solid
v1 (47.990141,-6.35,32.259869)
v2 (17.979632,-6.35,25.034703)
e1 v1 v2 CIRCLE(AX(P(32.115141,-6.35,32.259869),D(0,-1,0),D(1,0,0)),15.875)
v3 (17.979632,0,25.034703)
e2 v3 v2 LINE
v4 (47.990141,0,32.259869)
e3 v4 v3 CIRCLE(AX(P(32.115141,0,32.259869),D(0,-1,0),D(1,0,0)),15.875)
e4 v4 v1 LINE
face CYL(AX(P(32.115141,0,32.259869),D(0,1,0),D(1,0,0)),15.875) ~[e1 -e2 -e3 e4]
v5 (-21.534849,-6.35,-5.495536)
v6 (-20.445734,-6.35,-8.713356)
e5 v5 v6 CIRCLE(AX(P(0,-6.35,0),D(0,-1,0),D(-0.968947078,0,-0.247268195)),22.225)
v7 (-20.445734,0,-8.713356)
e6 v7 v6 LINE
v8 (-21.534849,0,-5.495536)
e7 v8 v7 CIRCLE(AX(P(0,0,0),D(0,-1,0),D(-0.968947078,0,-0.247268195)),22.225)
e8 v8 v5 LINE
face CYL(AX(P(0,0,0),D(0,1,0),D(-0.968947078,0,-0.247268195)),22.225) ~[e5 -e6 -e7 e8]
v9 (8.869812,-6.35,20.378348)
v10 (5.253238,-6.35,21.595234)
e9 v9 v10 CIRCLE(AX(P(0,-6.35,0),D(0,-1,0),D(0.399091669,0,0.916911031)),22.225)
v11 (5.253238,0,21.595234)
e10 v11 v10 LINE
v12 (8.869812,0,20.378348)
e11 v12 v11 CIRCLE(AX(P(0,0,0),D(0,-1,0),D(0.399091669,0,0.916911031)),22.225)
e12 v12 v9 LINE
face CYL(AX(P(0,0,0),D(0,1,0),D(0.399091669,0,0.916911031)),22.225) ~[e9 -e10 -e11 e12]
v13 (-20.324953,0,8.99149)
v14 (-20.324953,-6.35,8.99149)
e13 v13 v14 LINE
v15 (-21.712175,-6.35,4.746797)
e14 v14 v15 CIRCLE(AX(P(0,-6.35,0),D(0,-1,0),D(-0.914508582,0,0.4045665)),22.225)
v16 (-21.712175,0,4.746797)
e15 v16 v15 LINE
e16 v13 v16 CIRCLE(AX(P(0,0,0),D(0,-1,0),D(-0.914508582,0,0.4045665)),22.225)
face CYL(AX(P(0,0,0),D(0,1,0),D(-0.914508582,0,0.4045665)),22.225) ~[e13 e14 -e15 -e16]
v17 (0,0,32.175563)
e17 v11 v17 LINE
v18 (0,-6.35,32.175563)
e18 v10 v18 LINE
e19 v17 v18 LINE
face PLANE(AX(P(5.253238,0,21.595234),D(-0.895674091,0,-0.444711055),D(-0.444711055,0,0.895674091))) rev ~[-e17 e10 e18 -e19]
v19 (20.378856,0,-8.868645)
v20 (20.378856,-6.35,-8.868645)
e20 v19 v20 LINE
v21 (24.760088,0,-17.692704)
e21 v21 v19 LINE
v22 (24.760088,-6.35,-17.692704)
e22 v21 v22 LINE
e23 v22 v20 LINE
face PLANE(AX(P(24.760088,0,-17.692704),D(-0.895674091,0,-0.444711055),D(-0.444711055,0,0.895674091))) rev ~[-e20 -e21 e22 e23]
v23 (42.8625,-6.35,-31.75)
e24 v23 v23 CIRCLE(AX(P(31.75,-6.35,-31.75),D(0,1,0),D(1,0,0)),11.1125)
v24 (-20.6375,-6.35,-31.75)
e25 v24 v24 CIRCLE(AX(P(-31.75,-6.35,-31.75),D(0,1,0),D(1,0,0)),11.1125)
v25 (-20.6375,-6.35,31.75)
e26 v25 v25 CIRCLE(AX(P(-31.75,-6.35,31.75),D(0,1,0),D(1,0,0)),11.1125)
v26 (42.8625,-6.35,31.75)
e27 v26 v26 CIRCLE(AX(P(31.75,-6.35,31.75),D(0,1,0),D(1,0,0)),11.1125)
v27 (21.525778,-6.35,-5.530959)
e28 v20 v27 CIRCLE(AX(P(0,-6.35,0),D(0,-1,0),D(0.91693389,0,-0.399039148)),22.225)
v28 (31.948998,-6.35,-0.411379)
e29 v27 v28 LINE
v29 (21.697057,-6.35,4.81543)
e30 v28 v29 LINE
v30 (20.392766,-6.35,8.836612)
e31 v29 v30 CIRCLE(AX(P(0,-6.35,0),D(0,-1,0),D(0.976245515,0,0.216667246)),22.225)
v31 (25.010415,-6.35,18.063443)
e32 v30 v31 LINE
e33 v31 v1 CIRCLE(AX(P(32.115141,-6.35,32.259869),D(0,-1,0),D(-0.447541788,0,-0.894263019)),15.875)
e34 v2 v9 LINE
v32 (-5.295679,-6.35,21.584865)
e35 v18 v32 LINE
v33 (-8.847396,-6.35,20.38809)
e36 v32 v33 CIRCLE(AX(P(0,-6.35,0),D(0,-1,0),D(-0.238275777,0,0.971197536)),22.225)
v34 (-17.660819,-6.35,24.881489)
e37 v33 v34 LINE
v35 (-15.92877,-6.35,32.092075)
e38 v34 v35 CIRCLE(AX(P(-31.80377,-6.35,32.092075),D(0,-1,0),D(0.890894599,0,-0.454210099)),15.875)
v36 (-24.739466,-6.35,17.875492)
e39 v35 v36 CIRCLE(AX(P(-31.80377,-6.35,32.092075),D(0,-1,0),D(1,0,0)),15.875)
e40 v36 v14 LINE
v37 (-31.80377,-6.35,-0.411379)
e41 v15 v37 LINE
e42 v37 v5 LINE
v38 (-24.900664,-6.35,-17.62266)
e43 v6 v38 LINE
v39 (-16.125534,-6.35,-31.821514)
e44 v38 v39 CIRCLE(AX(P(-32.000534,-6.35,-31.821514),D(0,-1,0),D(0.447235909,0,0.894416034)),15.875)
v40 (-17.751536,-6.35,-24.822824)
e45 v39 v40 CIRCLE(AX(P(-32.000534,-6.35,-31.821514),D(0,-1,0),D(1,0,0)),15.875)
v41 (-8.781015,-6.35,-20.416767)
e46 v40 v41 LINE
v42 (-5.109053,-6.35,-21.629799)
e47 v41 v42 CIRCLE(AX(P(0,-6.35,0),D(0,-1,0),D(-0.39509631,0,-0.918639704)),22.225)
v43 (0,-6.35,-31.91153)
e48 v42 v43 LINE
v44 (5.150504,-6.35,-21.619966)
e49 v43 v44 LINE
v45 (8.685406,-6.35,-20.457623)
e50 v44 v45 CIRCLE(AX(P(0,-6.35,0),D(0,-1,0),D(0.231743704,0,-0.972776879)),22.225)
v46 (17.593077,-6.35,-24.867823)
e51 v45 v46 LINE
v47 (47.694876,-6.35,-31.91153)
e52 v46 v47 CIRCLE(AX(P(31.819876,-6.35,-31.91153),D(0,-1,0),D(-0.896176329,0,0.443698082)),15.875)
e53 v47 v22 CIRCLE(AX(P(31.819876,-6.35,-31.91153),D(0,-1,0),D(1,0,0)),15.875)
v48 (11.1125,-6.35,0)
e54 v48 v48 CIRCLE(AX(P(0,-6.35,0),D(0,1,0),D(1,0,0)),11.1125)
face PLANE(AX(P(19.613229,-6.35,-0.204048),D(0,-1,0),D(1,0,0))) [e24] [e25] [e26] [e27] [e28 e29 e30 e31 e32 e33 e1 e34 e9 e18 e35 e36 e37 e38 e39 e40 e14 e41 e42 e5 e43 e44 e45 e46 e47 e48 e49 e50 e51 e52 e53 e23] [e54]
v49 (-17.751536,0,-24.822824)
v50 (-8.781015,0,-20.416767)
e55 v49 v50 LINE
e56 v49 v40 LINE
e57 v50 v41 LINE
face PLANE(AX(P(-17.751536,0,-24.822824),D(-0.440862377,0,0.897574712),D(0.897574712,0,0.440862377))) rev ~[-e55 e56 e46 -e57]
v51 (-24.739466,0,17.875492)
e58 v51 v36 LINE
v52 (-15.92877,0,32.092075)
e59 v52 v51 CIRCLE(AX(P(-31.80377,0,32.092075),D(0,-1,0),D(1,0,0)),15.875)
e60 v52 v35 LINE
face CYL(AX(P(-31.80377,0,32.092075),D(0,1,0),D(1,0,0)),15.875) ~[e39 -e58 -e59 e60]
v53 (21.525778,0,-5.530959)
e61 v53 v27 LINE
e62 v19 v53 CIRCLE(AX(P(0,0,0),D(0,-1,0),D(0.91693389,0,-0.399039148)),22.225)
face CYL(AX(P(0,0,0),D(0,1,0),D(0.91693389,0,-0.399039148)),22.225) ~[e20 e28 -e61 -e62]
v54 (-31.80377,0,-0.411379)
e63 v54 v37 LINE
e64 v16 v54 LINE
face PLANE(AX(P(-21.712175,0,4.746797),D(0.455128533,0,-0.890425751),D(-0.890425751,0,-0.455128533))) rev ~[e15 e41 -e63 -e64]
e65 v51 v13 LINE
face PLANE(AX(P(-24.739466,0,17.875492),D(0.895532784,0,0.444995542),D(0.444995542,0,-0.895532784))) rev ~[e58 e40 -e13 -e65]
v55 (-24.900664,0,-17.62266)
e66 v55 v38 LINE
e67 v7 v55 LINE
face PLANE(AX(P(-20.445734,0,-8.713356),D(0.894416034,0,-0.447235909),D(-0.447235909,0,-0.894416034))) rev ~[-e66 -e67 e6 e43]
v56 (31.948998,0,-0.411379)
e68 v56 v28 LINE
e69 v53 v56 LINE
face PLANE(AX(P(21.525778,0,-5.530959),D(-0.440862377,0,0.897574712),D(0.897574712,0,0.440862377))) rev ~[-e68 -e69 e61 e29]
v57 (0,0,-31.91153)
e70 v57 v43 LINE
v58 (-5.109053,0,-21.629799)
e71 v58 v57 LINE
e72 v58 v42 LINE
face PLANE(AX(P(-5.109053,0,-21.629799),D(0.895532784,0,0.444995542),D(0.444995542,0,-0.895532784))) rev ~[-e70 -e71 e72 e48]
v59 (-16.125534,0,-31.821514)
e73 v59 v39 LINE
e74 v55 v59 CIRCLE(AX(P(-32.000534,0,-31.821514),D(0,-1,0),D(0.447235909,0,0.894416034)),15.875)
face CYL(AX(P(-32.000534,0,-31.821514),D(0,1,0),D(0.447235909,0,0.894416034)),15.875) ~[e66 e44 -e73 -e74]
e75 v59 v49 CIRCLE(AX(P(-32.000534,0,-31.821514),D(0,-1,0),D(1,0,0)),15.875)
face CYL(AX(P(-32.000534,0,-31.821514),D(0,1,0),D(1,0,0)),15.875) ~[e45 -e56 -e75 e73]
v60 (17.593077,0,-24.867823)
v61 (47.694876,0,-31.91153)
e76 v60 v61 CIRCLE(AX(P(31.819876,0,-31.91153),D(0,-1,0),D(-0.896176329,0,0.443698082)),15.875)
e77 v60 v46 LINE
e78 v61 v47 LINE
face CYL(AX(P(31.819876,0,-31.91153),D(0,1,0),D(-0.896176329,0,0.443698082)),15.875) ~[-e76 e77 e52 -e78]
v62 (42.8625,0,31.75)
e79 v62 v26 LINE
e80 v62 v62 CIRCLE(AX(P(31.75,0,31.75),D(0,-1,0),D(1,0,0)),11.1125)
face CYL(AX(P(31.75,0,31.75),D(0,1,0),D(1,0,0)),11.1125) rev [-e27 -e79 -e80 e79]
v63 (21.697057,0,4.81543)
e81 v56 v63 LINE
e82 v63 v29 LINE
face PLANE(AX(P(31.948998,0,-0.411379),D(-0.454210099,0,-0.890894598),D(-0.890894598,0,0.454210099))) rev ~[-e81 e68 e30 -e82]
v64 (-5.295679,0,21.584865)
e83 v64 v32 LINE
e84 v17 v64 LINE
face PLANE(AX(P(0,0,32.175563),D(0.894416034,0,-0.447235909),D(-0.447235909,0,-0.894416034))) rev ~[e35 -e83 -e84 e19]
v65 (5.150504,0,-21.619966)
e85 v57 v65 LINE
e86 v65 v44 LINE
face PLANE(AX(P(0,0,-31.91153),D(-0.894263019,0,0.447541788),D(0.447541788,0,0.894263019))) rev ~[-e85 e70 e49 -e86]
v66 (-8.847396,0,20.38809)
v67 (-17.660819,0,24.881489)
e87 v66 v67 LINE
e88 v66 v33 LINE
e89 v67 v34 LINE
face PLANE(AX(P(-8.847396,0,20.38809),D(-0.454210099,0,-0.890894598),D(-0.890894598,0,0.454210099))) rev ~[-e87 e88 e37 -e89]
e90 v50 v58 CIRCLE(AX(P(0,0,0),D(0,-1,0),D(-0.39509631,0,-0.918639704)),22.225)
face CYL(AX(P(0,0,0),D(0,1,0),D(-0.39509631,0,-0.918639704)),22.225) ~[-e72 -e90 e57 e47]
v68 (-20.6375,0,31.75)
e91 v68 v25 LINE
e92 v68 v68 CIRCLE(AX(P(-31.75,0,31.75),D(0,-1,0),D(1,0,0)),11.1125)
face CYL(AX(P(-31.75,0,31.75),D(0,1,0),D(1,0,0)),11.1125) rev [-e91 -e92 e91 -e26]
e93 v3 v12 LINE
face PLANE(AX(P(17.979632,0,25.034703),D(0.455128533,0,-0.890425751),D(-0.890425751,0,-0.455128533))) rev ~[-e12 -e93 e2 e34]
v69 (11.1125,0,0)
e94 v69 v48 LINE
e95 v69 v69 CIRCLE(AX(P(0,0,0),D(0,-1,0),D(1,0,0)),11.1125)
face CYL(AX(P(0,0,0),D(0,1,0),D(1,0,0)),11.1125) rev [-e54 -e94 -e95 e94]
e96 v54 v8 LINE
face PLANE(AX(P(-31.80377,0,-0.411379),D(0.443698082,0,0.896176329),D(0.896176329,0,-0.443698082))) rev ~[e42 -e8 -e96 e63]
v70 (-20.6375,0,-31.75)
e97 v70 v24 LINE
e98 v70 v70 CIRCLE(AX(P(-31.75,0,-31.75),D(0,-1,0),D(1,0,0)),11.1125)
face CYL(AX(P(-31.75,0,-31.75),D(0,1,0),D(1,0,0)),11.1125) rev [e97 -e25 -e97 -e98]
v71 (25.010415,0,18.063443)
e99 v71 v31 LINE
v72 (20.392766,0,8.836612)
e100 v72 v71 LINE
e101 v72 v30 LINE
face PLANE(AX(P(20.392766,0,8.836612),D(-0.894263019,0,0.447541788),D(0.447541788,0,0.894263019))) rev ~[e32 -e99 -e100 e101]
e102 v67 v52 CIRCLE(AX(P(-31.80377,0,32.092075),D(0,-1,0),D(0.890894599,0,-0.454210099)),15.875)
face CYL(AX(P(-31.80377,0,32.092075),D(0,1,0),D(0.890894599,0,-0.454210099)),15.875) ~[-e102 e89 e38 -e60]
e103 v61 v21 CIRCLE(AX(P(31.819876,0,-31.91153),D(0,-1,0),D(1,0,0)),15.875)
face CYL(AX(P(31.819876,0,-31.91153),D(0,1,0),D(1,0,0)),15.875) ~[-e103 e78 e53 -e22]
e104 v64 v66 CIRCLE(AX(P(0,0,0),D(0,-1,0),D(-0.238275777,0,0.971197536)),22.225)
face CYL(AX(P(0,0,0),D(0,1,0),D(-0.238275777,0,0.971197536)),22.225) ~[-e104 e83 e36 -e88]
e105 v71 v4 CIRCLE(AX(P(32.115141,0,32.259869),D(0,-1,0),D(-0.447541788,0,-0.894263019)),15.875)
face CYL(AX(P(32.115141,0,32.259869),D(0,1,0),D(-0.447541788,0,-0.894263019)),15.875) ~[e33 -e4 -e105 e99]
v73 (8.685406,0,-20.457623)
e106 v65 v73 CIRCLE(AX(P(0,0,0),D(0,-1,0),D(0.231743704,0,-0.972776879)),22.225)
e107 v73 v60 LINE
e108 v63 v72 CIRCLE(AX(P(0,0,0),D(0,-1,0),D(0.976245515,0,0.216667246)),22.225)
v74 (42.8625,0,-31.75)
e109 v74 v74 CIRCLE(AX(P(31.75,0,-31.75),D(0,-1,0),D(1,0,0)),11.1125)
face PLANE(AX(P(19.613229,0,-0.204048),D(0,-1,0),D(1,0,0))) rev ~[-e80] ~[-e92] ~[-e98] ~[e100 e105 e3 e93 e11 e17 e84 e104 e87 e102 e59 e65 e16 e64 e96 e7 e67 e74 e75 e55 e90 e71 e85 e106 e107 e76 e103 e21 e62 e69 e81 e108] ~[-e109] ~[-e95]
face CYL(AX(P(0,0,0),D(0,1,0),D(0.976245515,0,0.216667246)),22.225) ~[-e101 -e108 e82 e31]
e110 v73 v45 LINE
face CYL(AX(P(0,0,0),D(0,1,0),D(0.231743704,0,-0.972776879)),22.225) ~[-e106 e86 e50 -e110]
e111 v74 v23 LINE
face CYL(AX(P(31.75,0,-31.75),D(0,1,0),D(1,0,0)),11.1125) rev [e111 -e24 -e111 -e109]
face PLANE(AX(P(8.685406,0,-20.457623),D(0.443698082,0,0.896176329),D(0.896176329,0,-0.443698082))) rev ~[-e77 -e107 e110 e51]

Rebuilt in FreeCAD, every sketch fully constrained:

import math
import FreeCAD as App
import Part
import Sketcher

V = App.Vector
Q = App.Units.Quantity


def add_polygon(sketch, points):
    """Adds a closed chain of lines whose ends are joined by coincident constraints."""
    first, n = sketch.GeometryCount, len(points)
    for a, b in zip(points, points[1:] + points[:1]):
        sketch.addGeometry(Part.LineSegment(App.Vector(*a, 0), App.Vector(*b, 0)), False)
    for i in range(n):
        sketch.addConstraint(Sketcher.Constraint("Coincident", first + i, 2, first + (i + 1) % n, 1))

doc = App.newDocument("Part")
body = doc.addObject("PartDesign::Body", "Body")

# Sketch on XZ plane
sketch1 = doc.addObject("Sketcher::SketchObject", "Sketch")
body.addObject(sketch1)
sketch1.AttachmentSupport = (doc.XZ_Plane, [""])
sketch1.MapMode = "FlatFace"
sketch1.addGeometry(Part.LineSegment(V(-20.445734, -8.713356, 0), V(-24.900664, -17.62266, 0)), False)  # 0
sketch1.addGeometry(Part.ArcOfCircle(Part.Circle(V(-32.000534, -31.821514, 0), V(0, 0, 1), 15.875), math.radians(63.433519), math.radians(360)), False)  # 1
sketch1.addGeometry(Part.ArcOfCircle(Part.Circle(V(-32.000534, -31.821514, 0), V(0, 0, 1), 15.875), math.radians(0), math.radians(26.158917)), False)  # 2
sketch1.addGeometry(Part.LineSegment(V(-17.751536, -24.822824, 0), V(-8.781015, -20.416767, 0)), False)  # 3
sketch1.addGeometry(Part.ArcOfCircle(Part.Circle(V(0, 0, 0), V(0, 0, 1), 22.225), math.radians(-113.271981), math.radians(-103.289928)), False)  # 4
sketch1.addGeometry(Part.LineSegment(V(-5.109053, -21.629799, 0), V(0, -31.91153, 0)), False)  # 5
sketch1.addGeometry(Part.LineSegment(V(0, -31.91153, 0), V(5.150504, -21.619966, 0)), False)  # 6
sketch1.addGeometry(Part.ArcOfCircle(Part.Circle(V(0, 0, 0), V(0, 0, 1), 22.225), math.radians(-76.600247), math.radians(-66.996062)), False)  # 7
sketch1.addGeometry(Part.LineSegment(V(8.685406, -20.457623, 0), V(17.593077, -24.867823, 0)), False)  # 8
sketch1.addGeometry(Part.ArcOfCircle(Part.Circle(V(31.819876, -31.91153, 0), V(0, 0, 1), 15.875), math.radians(153.659928), math.radians(360)), False)  # 9
sketch1.addGeometry(Part.ArcOfCircle(Part.Circle(V(31.819876, -31.91153, 0), V(0, 0, 1), 15.875), math.radians(0), math.radians(116.404854)), False)  # 10
sketch1.addGeometry(Part.LineSegment(V(24.760088, -17.692704, 0), V(20.378856, -8.868645, 0)), False)  # 11
sketch1.addGeometry(Part.ArcOfCircle(Part.Circle(V(0, 0, 0), V(0, 0, 1), 22.225), math.radians(-23.518125), math.radians(-14.410185)), False)  # 12
sketch1.addGeometry(Part.LineSegment(V(21.525778, -5.530959, 0), V(31.948998, -0.411379, 0)), False)  # 13
sketch1.addGeometry(Part.LineSegment(V(31.948998, -0.411379, 0), V(21.697057, 4.81543, 0)), False)  # 14
sketch1.addGeometry(Part.ArcOfCircle(Part.Circle(V(0, 0, 0), V(0, 0, 1), 22.225), math.radians(12.513359), math.radians(23.428094)), False)  # 15
sketch1.addGeometry(Part.LineSegment(V(20.392766, 8.836612, 0), V(25.010415, 18.063443, 0)), False)  # 16
sketch1.addGeometry(Part.ArcOfCircle(Part.Circle(V(32.115141, 32.259869, 0), V(0, 0, 1), 15.875), math.radians(-116.586077), math.radians(0)), False)  # 17
sketch1.addGeometry(Part.ArcOfCircle(Part.Circle(V(32.115141, 32.259869, 0), V(0, 0, 1), 15.875), math.radians(0), math.radians(207.073205)), False)  # 18
sketch1.addGeometry(Part.LineSegment(V(17.979632, 25.034703, 0), V(8.869812, 20.378348, 0)), False)  # 19
sketch1.addGeometry(Part.ArcOfCircle(Part.Circle(V(0, 0, 0), V(0, 0, 1), 22.225), math.radians(66.478593), math.radians(76.327832)), False)  # 20
sketch1.addGeometry(Part.LineSegment(V(5.253238, 21.595234, 0), V(0, 32.175563, 0)), False)  # 21
sketch1.addGeometry(Part.LineSegment(V(0, 32.175563, 0), V(-5.295679, 21.584865, 0)), False)  # 22
sketch1.addGeometry(Part.ArcOfCircle(Part.Circle(V(0, 0, 0), V(0, 0, 1), 22.225), math.radians(103.784798), math.radians(113.458396)), False)  # 23
sketch1.addGeometry(Part.LineSegment(V(-8.847396, 20.38809, 0), V(-17.660819, 24.881489, 0)), False)  # 24
sketch1.addGeometry(Part.ArcOfCircle(Part.Circle(V(-31.80377, 32.092075, 0), V(0, 0, 1), 15.875), math.radians(-27.014122), math.radians(0)), False)  # 25
sketch1.addGeometry(Part.ArcOfCircle(Part.Circle(V(-31.80377, 32.092075, 0), V(0, 0, 1), 15.875), math.radians(0), math.radians(296.423054)), False)  # 26
sketch1.addGeometry(Part.LineSegment(V(-24.739466, 17.875492, 0), V(-20.324953, 8.99149, 0)), False)  # 27
sketch1.addGeometry(Part.ArcOfCircle(Part.Circle(V(0, 0, 0), V(0, 0, 1), 22.225), math.radians(156.136035), math.radians(167.667816)), False)  # 28
sketch1.addGeometry(Part.LineSegment(V(-21.712175, 4.746797, 0), V(-31.80377, -0.411379, 0)), False)  # 29
sketch1.addGeometry(Part.LineSegment(V(-31.80377, -0.411379, 0), V(-21.534849, -5.495536, 0)), False)  # 30
sketch1.addGeometry(Part.ArcOfCircle(Part.Circle(V(0, 0, 0), V(0, 0, 1), 22.225), math.radians(-165.684083), math.radians(-156.917759)), False)  # 31
add_polygon(sketch1, [(-15.972543, 0.232469), (-18.923919, 6.171975), (-10.969613, 10.237706), (-10.671597, 10.833701), (-6.494051, 19.18827), (0.032029, 15.86104), (6.467183, 19.150278), (10.623331, 10.779553), (10.834962, 10.353316), (19.054566, 6.162666), (15.972956, 0.005095), (19.271432, -6.638228), (10.822057, -10.788313), (10.489571, -10.95162), (6.31864, -19.285835), (-0.054425, -16.130522), (-6.313943, -19.205014), (-10.382602, -11.017028), (-10.919135, -10.75139), (-19.372138, -6.566297)])  # lines 32-51
sketch1.addConstraint([
    Sketcher.Constraint("Coincident", 0, 2, 1, 1),
    Sketcher.Constraint("Tangent", 1, 2, 2, 1),
    Sketcher.Constraint("Coincident", 2, 2, 3, 1),
    Sketcher.Constraint("Coincident", 3, 2, 4, 1),
    Sketcher.Constraint("Coincident", 4, 2, 5, 1),
    Sketcher.Constraint("Coincident", 5, 2, 6, 1),
    Sketcher.Constraint("Coincident", 6, 2, 7, 1),
    Sketcher.Constraint("Coincident", 7, 2, 8, 1),
    Sketcher.Constraint("Coincident", 8, 2, 9, 1),
    Sketcher.Constraint("Tangent", 9, 2, 10, 1),
    Sketcher.Constraint("Coincident", 10, 2, 11, 1),
    Sketcher.Constraint("Coincident", 11, 2, 12, 1),
    Sketcher.Constraint("Coincident", 12, 2, 13, 1),
    Sketcher.Constraint("Coincident", 13, 2, 14, 1),
    Sketcher.Constraint("Coincident", 14, 2, 15, 1),
    Sketcher.Constraint("Coincident", 15, 2, 16, 1),
    Sketcher.Constraint("Coincident", 16, 2, 17, 1),
    Sketcher.Constraint("Tangent", 17, 2, 18, 1),
    Sketcher.Constraint("Coincident", 18, 2, 19, 1),
    Sketcher.Constraint("Coincident", 19, 2, 20, 1),
    Sketcher.Constraint("Coincident", 20, 2, 21, 1),
    Sketcher.Constraint("Coincident", 21, 2, 22, 1),
    Sketcher.Constraint("Coincident", 22, 2, 23, 1),
    Sketcher.Constraint("Coincident", 23, 2, 24, 1),
    Sketcher.Constraint("Coincident", 24, 2, 25, 1),
    Sketcher.Constraint("Tangent", 25, 2, 26, 1),
    Sketcher.Constraint("Coincident", 26, 2, 27, 1),
    Sketcher.Constraint("Coincident", 27, 2, 28, 1),
    Sketcher.Constraint("Coincident", 28, 2, 29, 1),
    Sketcher.Constraint("Coincident", 29, 2, 30, 1),
    Sketcher.Constraint("Coincident", 30, 2, 31, 1),
    Sketcher.Constraint("Coincident", 31, 2, 0, 1),
    Sketcher.Constraint("Coincident", 4, 3, -1, 1),
    Sketcher.Constraint("Coincident", 7, 3, -1, 1),
    Sketcher.Constraint("Coincident", 12, 3, -1, 1),
    Sketcher.Constraint("Coincident", 15, 3, -1, 1),
    Sketcher.Constraint("Coincident", 20, 3, -1, 1),
    Sketcher.Constraint("Coincident", 23, 3, -1, 1),
    Sketcher.Constraint("Coincident", 28, 3, -1, 1),
    Sketcher.Constraint("Coincident", 31, 3, -1, 1),
    Sketcher.Constraint("Equal", 1, 2),
    Sketcher.Constraint("Equal", 4, 7),
    Sketcher.Constraint("Equal", 2, 9),
    Sketcher.Constraint("Equal", 9, 10),
    Sketcher.Constraint("Equal", 7, 12),
    Sketcher.Constraint("Equal", 12, 15),
    Sketcher.Constraint("Equal", 10, 17),
    Sketcher.Constraint("Equal", 17, 18),
    Sketcher.Constraint("Equal", 15, 20),
    Sketcher.Constraint("Equal", 20, 23),
    Sketcher.Constraint("Equal", 18, 25),
    Sketcher.Constraint("Equal", 25, 26),
    Sketcher.Constraint("Equal", 23, 28),
    Sketcher.Constraint("Equal", 28, 31),
    Sketcher.Constraint("PointOnObject", 5, 2, -2),
    Sketcher.Constraint("PointOnObject", 21, 2, -2),
    Sketcher.Constraint("Parallel", 3, 13),
    Sketcher.Constraint("Parallel", 6, 16),
    Sketcher.Constraint("Parallel", 11, 21),
    Sketcher.Constraint("Parallel", 0, 22),
    Sketcher.Constraint("Parallel", 14, 24),
    Sketcher.Constraint("Parallel", 5, 27),
    Sketcher.Constraint("Parallel", 19, 29),
    Sketcher.Constraint("Parallel", 8, 30),
    Sketcher.Constraint("Parallel", 27, 32),
    Sketcher.Constraint("Parallel", 29, 33),
    Sketcher.Constraint("Parallel", 22, 34),
    Sketcher.Constraint("Parallel", 34, 35),
    Sketcher.Constraint("Parallel", 24, 36),
    Sketcher.Constraint("Parallel", 33, 37),
    Sketcher.Constraint("Parallel", 21, 38),
    Sketcher.Constraint("Parallel", 38, 39),
    Sketcher.Constraint("Parallel", 36, 40),
    Sketcher.Constraint("Parallel", 16, 41),
    Sketcher.Constraint("Parallel", 39, 42),
    Sketcher.Constraint("Parallel", 13, 43),
    Sketcher.Constraint("Parallel", 43, 44),
    Sketcher.Constraint("Parallel", 41, 45),
    Sketcher.Constraint("Parallel", 30, 46),
    Sketcher.Constraint("Parallel", 44, 47),
    Sketcher.Constraint("Parallel", 32, 48),
    Sketcher.Constraint("Parallel", 46, 49),
    Sketcher.Constraint("Parallel", 49, 50),
    Sketcher.Constraint("Parallel", 35, 51),
    Sketcher.Constraint("Horizontal", 2, 3, 1, 2),
    Sketcher.Constraint("Horizontal", 10, 3, 5, 2),
    Sketcher.Constraint("Horizontal", 5, 2, 9, 2),
    Sketcher.Constraint("Horizontal", 18, 3, 17, 2),
    Sketcher.Constraint("Horizontal", 26, 3, 25, 2),
    Sketcher.Constraint("Horizontal", 13, 2, 29, 2),
    Sketcher.Constraint("Vertical", 26, 3, 29, 2),
    Sketcher.Constraint("Radius", 1, Q("0.625 in")),
    Sketcher.Constraint("Radius", 4, Q("0.875 in")),
    Sketcher.Constraint("Distance", 21, 11.8127),
    Sketcher.Constraint("Distance", 50, 9.432299),
    Sketcher.Constraint("DistanceY", 4, 2, -1, 1, 21.629799),
    Sketcher.Constraint("DistanceX", -1, 1, 13, 2, 31.948998),
    Sketcher.Constraint("DistanceY", -1, 1, 34, 2, 10.833701),
    Sketcher.Constraint("Distance", 0, 9.961029),
    Sketcher.Constraint("Distance", 6, 11.508431),
    Sketcher.Constraint("Distance", 8, 9.939642),
    Sketcher.Constraint("Distance", 13, 11.612649),
    Sketcher.Constraint("Distance", 14, 11.507469),
    Sketcher.Constraint("Distance", 19, 10.230858),
    Sketcher.Constraint("Distance", 29, 11.33345),
    Sketcher.Constraint("Distance", 32, 6.632372),
    Sketcher.Constraint("Distance", 33, 8.93315),
    Sketcher.Constraint("Distance", 34, 0.66635),
    Sketcher.Constraint("Distance", 35, 9.340809),
    Sketcher.Constraint("Distance", 36, 7.325311),
    Sketcher.Constraint("Distance", 42, 7.417121),
    Sketcher.Constraint("Distance", 43, 9.413561),
    Sketcher.Constraint("Distance", 49, 0.598691),
    Sketcher.Constraint("DistanceY", 9, 3, -1, 1, 31.91153),
    Sketcher.Constraint("DistanceX", -1, 1, 17, 3, 32.115141),
    Sketcher.Constraint("DistanceY", -1, 1, 17, 3, 32.259869),
    Sketcher.Constraint("DistanceX", 25, 3, -1, 1, 31.80377),
    Sketcher.Constraint("DistanceY", 0, 2, -1, 1, 17.62266),
    Sketcher.Constraint("DistanceX", -1, 1, 10, 2, 24.760088),
    Sketcher.Constraint("DistanceY", 12, 2, -1, 1, 5.530959),
    Sketcher.Constraint("DistanceX", -1, 1, 20, 2, 5.253238),
    Sketcher.Constraint("DistanceX", 22, 2, -1, 1, 5.295679),
    Sketcher.Constraint("DistanceY", -1, 1, 23, 2, 20.38809),
    Sketcher.Constraint("DistanceX", 24, 2, -1, 1, 17.660819),
    Sketcher.Constraint("DistanceY", -1, 1, 26, 2, 17.875492),
    Sketcher.Constraint("DistanceX", 30, 2, -1, 1, 21.534849),
    Sketcher.Constraint("DistanceX", 32, 2, -1, 1, 18.923919),
    Sketcher.Constraint("DistanceX", -1, 1, 38, 2, 10.623331),
    Sketcher.Constraint("DistanceX", -1, 1, 39, 2, 10.834962),
    Sketcher.Constraint("DistanceX", -1, 1, 42, 2, 19.271432),
    Sketcher.Constraint("DistanceY", 42, 2, -1, 1, 6.638228),
    Sketcher.Constraint("DistanceX", -1, 1, 44, 2, 10.489571),
    Sketcher.Constraint("DistanceX", -1, 1, 45, 2, 6.31864),
    Sketcher.Constraint("DistanceY", 46, 2, -1, 1, 16.130522),
    Sketcher.Constraint("DistanceY", 49, 2, -1, 1, 10.75139),
    Sketcher.Constraint("Distance", 3, 9.994177),
    Sketcher.Constraint("Distance", 11, 9.851864),
    Sketcher.Constraint("Distance", 16, 10.317804),
    Sketcher.Constraint("Distance", 37, 7.227053),
    Sketcher.Constraint("DistanceX", 1, 3, -1, 1, 32.000534),
])
pad1 = doc.addObject("PartDesign::Pad", "Pad")
body.addObject(pad1)
pad1.Profile = sketch1
pad1.Length = Q("0.25 in")

# Sketch on XZ plane
sketch2 = doc.addObject("Sketcher::SketchObject", "Sketch001")
body.addObject(sketch2)
sketch2.AttachmentSupport = (doc.XZ_Plane, [""])
sketch2.MapMode = "FlatFace"
sketch2.addGeometry([
    Part.Circle(V(-31.75, 31.75, 0), V(0, 0, 1), 11.1125),  # 0
    Part.Circle(V(31.75, 31.75, 0), V(0, 0, 1), 11.1125),  # 1
    Part.Circle(V(31.75, -31.75, 0), V(0, 0, 1), 11.1125),  # 2
    Part.Circle(V(-31.75, -31.75, 0), V(0, 0, 1), 11.1125),  # 3
    Part.Circle(V(0, 0, 0), V(0, 0, 1), 11.1125),  # 4
], False)
sketch2.addConstraint([
    Sketcher.Constraint("Coincident", 4, 3, -1, 1),
    Sketcher.Constraint("Equal", 0, 1),
    Sketcher.Constraint("Equal", 1, 2),
    Sketcher.Constraint("Equal", 2, 3),
    Sketcher.Constraint("Equal", 3, 4),
    Sketcher.Constraint("Symmetric", 0, 3, 2, 3, -1, 1),
    Sketcher.Constraint("Symmetric", 1, 3, 3, 3, -1, 1),
    Sketcher.Constraint("Symmetric", 0, 3, 1, 3, -2),
    Sketcher.Constraint("Diameter", 0, Q("0.875 in")),
    Sketcher.Constraint("DistanceX", 0, 3, 1, 3, Q("2.5 in")),
    Sketcher.Constraint("DistanceY", 2, 3, 1, 3, Q("2.5 in")),
])
pocket1 = doc.addObject("PartDesign::Pocket", "Pocket")
body.addObject(pocket1)
pocket1.Profile = sketch2
pocket1.Type = "ThroughAll"
pocket1.Reversed = True

# Sketch on XZ plane
sketch3 = doc.addObject("Sketcher::SketchObject", "Sketch002")
body.addObject(sketch3)
sketch3.AttachmentSupport = (doc.XZ_Plane, [""])
sketch3.MapMode = "FlatFace"
sketch3.addGeometry(Part.Circle(V(0, 0, 0), V(0, 0, 1), 21.59), False)
sketch3.addConstraint([
    Sketcher.Constraint("Coincident", 0, 3, -1, 1),
    Sketcher.Constraint("Diameter", 0, Q("1.7 in")),
])
pad2 = doc.addObject("PartDesign::Pad", "Pad001")
body.addObject(pad2)
pad2.Profile = sketch3
pad2.Length = Q("0.25 in")

# Sketch on XZ plane
sketch4 = doc.addObject("Sketcher::SketchObject", "Sketch003")
body.addObject(sketch4)
sketch4.AttachmentSupport = (doc.XZ_Plane, [""])
sketch4.MapMode = "FlatFace"
sketch4.addGeometry(Part.Circle(V(0, 0, 0), V(0, 0, 1), 11.1125), False)
sketch4.addConstraint([
    Sketcher.Constraint("Coincident", 0, 3, -1, 1),
    Sketcher.Constraint("Diameter", 0, Q("0.875 in")),
])
pocket2 = doc.addObject("PartDesign::Pocket", "Pocket001")
body.addObject(pocket2)
pocket2.Profile = sketch4
pocket2.Type = "ThroughAll"
pocket2.Reversed = True

doc.recompute()
